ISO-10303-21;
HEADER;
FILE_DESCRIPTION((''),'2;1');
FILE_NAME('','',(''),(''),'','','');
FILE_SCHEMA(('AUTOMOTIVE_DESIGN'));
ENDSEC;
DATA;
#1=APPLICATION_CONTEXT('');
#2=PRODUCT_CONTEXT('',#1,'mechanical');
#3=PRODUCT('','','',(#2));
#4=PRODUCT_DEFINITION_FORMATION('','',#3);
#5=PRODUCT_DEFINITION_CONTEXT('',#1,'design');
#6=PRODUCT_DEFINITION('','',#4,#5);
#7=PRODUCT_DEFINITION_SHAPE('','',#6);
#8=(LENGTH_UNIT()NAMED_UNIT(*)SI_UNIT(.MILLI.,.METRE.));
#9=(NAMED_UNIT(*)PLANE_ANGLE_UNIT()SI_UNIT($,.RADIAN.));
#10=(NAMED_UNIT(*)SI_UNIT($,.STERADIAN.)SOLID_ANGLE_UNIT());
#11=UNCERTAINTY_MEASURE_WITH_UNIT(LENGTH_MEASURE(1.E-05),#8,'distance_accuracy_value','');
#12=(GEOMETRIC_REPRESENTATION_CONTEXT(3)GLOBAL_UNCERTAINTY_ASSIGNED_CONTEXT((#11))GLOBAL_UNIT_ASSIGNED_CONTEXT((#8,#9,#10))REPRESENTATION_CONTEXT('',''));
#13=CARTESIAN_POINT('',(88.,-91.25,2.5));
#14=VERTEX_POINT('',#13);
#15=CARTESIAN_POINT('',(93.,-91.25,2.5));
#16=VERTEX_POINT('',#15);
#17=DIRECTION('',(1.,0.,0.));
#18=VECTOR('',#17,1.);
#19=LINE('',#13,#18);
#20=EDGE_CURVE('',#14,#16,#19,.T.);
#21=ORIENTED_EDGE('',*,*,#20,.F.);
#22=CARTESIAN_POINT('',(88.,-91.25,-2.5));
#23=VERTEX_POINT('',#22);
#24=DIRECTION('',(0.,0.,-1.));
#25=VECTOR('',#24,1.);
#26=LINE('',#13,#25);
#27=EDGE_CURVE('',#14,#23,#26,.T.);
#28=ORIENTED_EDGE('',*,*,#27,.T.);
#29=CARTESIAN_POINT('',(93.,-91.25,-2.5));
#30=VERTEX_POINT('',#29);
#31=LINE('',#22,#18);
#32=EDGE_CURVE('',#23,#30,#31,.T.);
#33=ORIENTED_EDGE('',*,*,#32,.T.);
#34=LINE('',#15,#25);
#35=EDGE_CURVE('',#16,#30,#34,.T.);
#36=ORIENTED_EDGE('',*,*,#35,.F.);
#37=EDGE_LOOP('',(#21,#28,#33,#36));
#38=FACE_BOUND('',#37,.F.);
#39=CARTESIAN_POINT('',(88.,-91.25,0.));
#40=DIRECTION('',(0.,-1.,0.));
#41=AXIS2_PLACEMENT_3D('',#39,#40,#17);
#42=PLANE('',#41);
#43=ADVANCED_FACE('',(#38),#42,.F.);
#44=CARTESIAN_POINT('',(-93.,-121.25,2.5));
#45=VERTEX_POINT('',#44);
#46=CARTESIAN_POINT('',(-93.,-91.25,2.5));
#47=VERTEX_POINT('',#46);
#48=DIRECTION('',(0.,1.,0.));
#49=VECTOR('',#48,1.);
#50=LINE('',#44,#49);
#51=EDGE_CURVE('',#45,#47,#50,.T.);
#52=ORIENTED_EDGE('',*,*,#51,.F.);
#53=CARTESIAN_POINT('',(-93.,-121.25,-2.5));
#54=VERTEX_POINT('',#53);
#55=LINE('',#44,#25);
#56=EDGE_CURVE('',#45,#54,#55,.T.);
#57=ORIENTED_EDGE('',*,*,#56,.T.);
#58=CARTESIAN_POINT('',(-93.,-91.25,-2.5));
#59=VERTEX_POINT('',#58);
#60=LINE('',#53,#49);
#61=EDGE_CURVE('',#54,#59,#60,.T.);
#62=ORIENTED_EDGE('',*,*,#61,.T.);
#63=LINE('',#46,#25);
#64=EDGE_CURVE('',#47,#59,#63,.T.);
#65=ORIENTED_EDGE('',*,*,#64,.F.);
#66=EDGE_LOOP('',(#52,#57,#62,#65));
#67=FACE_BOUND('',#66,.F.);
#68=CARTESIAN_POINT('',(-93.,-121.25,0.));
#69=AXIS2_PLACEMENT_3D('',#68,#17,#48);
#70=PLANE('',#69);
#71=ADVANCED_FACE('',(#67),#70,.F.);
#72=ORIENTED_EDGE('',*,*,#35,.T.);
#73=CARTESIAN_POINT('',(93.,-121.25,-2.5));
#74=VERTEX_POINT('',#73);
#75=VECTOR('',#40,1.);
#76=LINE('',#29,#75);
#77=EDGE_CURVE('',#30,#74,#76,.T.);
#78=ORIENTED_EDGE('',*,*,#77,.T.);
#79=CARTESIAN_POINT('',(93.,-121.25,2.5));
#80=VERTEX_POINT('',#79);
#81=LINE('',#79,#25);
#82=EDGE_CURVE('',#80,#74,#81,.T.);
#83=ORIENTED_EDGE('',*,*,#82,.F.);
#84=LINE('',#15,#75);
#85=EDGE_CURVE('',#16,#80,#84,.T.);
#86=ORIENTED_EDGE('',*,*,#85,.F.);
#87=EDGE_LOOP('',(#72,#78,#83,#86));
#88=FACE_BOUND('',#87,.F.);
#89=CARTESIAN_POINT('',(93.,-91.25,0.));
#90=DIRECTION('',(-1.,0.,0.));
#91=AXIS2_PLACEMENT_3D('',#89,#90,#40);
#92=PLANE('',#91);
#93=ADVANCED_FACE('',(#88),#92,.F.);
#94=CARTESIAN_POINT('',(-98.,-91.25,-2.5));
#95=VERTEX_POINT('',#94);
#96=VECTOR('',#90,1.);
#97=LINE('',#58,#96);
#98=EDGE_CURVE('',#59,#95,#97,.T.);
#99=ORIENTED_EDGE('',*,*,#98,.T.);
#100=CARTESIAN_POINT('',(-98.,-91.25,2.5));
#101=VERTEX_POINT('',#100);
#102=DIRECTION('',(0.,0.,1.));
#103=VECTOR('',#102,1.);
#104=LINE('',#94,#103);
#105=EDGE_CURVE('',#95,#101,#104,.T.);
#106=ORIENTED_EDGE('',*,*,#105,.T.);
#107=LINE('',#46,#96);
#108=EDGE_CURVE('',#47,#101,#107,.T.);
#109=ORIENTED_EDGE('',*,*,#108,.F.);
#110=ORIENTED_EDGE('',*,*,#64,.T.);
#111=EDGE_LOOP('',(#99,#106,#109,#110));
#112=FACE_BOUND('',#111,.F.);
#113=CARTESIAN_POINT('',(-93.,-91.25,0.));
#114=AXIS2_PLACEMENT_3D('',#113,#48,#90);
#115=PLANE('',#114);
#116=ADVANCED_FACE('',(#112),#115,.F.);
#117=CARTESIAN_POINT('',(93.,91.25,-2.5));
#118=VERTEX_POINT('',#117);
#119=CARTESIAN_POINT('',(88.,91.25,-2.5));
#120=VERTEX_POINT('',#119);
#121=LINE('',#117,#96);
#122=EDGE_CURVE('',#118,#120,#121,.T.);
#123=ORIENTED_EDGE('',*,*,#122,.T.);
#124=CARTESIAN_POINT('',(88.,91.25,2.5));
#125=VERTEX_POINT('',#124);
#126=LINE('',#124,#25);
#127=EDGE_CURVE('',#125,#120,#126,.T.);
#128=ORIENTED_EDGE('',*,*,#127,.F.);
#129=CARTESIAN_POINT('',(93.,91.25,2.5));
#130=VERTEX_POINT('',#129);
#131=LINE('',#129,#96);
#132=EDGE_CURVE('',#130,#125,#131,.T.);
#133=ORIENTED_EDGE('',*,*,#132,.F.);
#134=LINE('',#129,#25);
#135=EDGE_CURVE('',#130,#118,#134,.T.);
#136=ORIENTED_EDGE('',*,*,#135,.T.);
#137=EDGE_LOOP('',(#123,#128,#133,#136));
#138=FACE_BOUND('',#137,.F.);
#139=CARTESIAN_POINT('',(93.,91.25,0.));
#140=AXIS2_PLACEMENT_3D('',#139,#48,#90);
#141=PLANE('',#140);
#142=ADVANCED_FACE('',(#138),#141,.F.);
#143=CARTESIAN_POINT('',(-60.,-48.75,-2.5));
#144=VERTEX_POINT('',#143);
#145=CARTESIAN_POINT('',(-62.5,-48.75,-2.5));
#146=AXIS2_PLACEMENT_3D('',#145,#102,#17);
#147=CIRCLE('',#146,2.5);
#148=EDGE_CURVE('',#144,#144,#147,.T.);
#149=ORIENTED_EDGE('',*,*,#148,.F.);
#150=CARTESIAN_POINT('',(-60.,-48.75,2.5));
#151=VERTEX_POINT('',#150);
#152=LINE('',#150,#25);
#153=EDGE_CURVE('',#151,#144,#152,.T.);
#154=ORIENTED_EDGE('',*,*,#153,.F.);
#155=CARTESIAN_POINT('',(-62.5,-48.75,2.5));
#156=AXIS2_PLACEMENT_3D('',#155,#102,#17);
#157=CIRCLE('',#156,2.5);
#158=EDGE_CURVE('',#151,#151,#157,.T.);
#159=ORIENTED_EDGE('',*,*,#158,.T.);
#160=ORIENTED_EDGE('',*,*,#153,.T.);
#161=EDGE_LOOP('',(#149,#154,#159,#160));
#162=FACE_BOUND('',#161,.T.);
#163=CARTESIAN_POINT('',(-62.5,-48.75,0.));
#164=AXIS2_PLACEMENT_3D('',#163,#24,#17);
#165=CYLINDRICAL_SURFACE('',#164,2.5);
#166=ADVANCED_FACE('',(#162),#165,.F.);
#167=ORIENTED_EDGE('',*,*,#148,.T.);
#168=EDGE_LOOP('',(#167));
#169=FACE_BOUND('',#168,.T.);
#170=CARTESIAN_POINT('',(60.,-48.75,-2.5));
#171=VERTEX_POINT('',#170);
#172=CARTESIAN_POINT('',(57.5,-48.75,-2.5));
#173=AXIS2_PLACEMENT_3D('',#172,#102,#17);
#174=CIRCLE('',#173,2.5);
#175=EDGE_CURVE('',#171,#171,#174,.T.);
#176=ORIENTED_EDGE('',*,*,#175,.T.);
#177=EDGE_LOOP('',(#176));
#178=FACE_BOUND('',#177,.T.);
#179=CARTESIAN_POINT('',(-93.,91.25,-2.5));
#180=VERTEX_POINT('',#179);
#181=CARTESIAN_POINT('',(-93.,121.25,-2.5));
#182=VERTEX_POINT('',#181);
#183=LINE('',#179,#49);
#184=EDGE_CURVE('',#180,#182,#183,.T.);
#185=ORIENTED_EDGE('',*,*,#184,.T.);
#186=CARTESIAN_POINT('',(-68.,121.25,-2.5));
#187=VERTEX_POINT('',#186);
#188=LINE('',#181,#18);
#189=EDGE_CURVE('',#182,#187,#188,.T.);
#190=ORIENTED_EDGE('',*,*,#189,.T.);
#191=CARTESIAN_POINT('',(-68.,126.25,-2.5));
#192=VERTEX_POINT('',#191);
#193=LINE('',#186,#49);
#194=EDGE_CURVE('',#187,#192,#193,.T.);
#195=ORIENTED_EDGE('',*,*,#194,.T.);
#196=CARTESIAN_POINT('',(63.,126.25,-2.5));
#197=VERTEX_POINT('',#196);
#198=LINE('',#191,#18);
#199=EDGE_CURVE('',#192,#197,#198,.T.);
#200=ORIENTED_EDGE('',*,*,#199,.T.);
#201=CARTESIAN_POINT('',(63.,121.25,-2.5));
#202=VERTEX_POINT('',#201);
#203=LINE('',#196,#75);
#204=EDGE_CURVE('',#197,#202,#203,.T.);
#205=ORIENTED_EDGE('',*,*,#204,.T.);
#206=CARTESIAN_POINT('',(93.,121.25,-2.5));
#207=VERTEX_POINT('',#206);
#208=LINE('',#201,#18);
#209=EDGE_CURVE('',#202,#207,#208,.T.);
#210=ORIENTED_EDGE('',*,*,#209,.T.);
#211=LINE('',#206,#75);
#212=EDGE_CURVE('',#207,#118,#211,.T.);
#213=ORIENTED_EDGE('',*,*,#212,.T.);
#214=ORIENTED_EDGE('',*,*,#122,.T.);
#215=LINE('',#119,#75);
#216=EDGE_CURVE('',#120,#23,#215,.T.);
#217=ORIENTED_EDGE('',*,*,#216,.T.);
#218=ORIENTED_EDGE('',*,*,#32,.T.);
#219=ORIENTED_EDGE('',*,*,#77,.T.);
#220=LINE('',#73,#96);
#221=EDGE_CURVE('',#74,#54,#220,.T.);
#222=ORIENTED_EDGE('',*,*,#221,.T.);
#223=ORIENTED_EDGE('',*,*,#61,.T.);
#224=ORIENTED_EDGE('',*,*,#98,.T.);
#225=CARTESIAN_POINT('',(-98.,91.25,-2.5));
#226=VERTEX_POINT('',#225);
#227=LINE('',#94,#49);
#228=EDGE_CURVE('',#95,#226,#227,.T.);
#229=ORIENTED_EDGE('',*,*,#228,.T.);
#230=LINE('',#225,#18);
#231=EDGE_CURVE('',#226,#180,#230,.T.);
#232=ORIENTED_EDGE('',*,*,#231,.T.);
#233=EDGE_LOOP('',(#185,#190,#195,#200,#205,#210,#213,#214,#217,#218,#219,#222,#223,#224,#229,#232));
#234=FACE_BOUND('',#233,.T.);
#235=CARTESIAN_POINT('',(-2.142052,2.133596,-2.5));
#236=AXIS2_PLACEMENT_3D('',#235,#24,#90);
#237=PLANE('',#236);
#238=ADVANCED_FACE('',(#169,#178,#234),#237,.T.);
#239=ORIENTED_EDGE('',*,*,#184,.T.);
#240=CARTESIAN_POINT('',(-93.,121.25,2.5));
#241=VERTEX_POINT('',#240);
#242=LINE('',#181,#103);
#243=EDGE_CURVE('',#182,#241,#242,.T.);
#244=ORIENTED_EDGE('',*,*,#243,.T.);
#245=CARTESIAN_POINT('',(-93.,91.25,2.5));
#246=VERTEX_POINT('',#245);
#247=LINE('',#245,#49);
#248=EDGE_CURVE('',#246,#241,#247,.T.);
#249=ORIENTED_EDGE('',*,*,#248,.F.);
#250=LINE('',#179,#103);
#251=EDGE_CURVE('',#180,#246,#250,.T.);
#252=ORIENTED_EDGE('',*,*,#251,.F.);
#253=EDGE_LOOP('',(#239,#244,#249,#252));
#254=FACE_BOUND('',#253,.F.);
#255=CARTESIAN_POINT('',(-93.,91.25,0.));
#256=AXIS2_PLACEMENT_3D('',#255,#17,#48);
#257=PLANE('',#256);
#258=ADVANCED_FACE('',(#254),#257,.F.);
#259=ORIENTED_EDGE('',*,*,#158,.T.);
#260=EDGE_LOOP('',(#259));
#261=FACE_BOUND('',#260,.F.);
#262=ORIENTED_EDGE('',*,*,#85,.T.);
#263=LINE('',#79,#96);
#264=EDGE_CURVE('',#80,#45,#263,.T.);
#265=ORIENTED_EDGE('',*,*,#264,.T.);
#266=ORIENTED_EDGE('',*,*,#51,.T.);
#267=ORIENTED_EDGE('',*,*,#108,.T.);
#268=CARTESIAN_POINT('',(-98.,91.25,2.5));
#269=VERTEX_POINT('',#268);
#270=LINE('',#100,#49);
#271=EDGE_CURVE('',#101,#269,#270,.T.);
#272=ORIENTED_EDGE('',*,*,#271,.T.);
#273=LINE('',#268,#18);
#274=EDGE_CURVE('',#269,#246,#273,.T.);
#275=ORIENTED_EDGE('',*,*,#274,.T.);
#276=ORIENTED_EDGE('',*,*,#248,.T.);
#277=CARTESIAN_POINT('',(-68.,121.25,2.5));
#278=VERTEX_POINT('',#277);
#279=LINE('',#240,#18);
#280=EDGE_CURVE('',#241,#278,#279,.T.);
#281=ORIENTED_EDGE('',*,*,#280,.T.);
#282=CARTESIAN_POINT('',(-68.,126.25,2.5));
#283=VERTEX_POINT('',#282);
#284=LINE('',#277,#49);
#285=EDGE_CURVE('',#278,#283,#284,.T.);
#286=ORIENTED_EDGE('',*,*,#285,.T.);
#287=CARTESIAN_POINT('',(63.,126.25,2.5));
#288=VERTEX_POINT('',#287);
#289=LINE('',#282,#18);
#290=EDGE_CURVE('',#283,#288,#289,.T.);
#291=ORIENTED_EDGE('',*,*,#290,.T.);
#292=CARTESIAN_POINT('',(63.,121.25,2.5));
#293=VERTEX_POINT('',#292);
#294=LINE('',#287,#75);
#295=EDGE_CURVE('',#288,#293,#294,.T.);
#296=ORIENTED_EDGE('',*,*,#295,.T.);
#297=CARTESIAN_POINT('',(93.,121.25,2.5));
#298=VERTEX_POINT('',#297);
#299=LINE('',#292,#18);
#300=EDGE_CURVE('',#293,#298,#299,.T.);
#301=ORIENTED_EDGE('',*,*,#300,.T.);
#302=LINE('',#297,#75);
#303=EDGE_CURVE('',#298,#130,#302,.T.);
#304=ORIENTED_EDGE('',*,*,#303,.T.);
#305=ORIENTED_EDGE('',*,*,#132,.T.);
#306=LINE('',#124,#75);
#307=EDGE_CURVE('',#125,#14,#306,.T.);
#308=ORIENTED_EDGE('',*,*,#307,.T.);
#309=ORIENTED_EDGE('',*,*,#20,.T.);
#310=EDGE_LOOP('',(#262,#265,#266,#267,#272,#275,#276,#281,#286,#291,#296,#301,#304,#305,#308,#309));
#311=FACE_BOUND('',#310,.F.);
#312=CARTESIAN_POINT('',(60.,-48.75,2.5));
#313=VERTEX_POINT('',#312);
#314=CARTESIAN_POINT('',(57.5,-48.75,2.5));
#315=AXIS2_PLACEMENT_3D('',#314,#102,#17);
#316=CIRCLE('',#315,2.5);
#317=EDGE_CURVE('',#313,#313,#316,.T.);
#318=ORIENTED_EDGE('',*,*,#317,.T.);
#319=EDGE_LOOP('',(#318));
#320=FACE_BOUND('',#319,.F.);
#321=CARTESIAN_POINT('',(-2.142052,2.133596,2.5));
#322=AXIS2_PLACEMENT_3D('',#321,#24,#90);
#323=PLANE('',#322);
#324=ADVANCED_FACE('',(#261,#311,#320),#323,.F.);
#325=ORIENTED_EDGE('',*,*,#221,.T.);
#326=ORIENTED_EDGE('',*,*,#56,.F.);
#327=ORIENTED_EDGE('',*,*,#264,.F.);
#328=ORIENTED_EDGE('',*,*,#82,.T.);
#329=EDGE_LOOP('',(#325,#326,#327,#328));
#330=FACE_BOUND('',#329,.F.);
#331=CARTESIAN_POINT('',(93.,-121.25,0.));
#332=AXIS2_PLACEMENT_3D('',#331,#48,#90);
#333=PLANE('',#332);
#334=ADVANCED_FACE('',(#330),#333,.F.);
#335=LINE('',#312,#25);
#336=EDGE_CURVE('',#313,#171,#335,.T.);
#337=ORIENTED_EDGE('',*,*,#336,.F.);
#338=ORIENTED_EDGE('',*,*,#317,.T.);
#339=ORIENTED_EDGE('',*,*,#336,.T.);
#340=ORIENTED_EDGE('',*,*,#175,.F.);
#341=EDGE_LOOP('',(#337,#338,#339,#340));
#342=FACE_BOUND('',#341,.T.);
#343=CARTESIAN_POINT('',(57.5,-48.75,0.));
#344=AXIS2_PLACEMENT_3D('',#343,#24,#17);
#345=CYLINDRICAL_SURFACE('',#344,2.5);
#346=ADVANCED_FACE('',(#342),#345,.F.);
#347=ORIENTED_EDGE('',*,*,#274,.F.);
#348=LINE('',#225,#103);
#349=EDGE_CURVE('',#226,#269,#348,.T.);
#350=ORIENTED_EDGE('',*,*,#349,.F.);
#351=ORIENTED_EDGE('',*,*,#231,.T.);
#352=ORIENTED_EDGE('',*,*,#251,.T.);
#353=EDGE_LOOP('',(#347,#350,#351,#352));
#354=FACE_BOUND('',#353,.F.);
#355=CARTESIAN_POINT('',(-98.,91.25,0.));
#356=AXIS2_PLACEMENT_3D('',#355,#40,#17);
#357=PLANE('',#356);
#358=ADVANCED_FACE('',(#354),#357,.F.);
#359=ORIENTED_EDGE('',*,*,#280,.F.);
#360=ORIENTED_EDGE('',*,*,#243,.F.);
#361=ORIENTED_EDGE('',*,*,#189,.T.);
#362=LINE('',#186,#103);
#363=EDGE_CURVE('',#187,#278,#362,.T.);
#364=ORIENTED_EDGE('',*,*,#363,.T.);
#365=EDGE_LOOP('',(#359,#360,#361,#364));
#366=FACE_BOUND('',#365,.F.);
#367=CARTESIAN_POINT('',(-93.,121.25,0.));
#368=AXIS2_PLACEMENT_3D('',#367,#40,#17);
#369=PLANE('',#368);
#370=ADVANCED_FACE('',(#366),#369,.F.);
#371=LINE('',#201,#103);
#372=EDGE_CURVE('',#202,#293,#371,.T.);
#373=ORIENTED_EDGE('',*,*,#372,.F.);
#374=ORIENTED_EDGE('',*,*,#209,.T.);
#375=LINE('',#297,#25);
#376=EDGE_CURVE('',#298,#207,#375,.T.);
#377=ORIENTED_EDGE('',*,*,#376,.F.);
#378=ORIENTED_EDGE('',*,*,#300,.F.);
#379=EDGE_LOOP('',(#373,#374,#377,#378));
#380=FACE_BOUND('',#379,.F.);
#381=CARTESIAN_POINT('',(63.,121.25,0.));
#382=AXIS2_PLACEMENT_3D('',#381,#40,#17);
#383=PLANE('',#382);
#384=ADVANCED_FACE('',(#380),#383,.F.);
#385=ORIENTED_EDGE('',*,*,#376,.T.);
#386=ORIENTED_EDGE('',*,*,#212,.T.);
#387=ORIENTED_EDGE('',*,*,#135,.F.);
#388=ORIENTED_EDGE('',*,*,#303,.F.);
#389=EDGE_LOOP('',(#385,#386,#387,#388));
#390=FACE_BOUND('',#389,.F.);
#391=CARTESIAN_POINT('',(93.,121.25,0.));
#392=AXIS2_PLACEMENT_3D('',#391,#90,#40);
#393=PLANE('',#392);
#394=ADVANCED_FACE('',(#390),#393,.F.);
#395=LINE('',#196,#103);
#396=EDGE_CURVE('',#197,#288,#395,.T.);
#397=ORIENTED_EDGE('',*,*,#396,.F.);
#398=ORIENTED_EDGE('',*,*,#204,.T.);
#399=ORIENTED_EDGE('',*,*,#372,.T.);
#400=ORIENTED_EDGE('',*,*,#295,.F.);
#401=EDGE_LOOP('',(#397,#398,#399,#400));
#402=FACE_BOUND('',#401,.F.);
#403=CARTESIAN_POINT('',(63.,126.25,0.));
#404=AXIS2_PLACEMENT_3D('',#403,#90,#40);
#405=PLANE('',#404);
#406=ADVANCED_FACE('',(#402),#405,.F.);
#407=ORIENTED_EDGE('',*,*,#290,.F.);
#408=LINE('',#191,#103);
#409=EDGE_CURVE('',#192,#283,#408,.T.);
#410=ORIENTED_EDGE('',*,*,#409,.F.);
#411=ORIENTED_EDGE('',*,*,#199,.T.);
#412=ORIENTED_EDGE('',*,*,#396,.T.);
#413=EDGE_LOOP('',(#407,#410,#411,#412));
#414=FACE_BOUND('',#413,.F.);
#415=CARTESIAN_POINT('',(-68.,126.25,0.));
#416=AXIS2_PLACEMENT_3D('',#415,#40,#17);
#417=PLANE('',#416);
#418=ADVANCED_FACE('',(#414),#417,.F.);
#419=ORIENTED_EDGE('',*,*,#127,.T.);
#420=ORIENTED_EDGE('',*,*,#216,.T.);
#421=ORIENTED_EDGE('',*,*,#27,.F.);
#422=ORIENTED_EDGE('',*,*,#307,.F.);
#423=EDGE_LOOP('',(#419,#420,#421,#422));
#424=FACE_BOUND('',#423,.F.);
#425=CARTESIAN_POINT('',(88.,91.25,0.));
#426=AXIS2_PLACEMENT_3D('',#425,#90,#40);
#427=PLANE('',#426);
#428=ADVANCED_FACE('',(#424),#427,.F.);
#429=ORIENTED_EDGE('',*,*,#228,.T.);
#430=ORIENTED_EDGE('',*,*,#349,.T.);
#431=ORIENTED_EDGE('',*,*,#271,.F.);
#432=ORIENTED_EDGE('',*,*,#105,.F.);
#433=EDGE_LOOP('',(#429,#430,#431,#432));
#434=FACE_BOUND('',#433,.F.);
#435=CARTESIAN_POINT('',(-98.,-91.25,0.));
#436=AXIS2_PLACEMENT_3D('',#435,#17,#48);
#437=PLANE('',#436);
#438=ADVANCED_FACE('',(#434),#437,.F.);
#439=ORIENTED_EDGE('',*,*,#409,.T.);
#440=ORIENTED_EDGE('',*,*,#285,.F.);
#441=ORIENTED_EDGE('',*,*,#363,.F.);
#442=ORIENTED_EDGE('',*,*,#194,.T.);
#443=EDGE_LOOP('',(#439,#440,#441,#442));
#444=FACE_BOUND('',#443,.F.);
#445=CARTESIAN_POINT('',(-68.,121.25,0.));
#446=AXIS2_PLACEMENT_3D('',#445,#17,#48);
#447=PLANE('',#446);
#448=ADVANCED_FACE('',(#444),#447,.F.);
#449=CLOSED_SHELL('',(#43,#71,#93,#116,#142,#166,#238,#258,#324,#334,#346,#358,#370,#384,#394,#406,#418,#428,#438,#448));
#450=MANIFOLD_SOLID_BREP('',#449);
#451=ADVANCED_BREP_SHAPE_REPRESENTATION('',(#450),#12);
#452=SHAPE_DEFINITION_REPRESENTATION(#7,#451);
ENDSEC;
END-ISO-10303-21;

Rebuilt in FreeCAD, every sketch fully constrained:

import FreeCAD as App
import Part
import Sketcher
from FreeCAD import Vector

doc = App.newDocument("Part")
body = doc.addObject("PartDesign::Body", "Body")

# Sketch on XY plane
sketch1 = body.newObject("Sketcher::SketchObject", "Sketch")
sketch1.AttachmentSupport = (doc.getObject("XY_Plane"), [""])
sketch1.MapMode = "FlatFace"
sketch1.addGeometry([
    Part.LineSegment(Vector(93, 121.25, 0), Vector(63, 121.25, 0)),  # 0
    Part.LineSegment(Vector(63, 121.25, 0), Vector(63, 126.25, 0)),  # 1
    Part.LineSegment(Vector(63, 126.25, 0), Vector(-68, 126.25, 0)),  # 2
    Part.LineSegment(Vector(-68, 126.25, 0), Vector(-68, 121.25, 0)),  # 3
    Part.LineSegment(Vector(-68, 121.25, 0), Vector(-93, 121.25, 0)),  # 4
    Part.LineSegment(Vector(-93, 121.25, 0), Vector(-93, 91.25, 0)),  # 5
    Part.LineSegment(Vector(-93, 91.25, 0), Vector(-98, 91.25, 0)),  # 6
    Part.LineSegment(Vector(-98, 91.25, 0), Vector(-98, -91.25, 0)),  # 7
    Part.LineSegment(Vector(-98, -91.25, 0), Vector(-93, -91.25, 0)),  # 8
    Part.LineSegment(Vector(-93, -91.25, 0), Vector(-93, -121.25, 0)),  # 9
    Part.LineSegment(Vector(-93, -121.25, 0), Vector(93, -121.25, 0)),  # 10
    Part.LineSegment(Vector(93, -121.25, 0), Vector(93, -91.25, 0)),  # 11
    Part.LineSegment(Vector(93, -91.25, 0), Vector(88, -91.25, 0)),  # 12
    Part.LineSegment(Vector(88, -91.25, 0), Vector(88, 91.25, 0)),  # 13
    Part.LineSegment(Vector(88, 91.25, 0), Vector(93, 91.25, 0)),  # 14
    Part.LineSegment(Vector(93, 91.25, 0), Vector(93, 121.25, 0)),  # 15
    Part.Circle(Vector(57.5, -48.75, 0), Vector(0, 0, 1), 2.5),  # 16
    Part.Circle(Vector(-62.5, -48.75, 0), Vector(0, 0, 1), 2.5),  # 17
], False)
sketch1.addConstraint([
    Sketcher.Constraint("Coincident", 0, 2, 1, 1),
    Sketcher.Constraint("Coincident", 1, 2, 2, 1),
    Sketcher.Constraint("Coincident", 2, 2, 3, 1),
    Sketcher.Constraint("Coincident", 3, 2, 4, 1),
    Sketcher.Constraint("Coincident", 4, 2, 5, 1),
    Sketcher.Constraint("Coincident", 5, 2, 6, 1),
    Sketcher.Constraint("Coincident", 6, 2, 7, 1),
    Sketcher.Constraint("Coincident", 7, 2, 8, 1),
    Sketcher.Constraint("Coincident", 8, 2, 9, 1),
    Sketcher.Constraint("Coincident", 9, 2, 10, 1),
    Sketcher.Constraint("Coincident", 10, 2, 11, 1),
    Sketcher.Constraint("Coincident", 11, 2, 12, 1),
    Sketcher.Constraint("Coincident", 12, 2, 13, 1),
    Sketcher.Constraint("Coincident", 13, 2, 14, 1),
    Sketcher.Constraint("Coincident", 14, 2, 15, 1),
    Sketcher.Constraint("Coincident", 15, 2, 0, 1),
    Sketcher.Constraint("Horizontal", 0),
    Sketcher.Constraint("Vertical", 1),
    Sketcher.Constraint("Horizontal", 2),
    Sketcher.Constraint("Vertical", 3),
    Sketcher.Constraint("Horizontal", 4),
    Sketcher.Constraint("Vertical", 5),
    Sketcher.Constraint("Horizontal", 6),
    Sketcher.Constraint("Vertical", 7),
    Sketcher.Constraint("Horizontal", 8),
    Sketcher.Constraint("Vertical", 9),
    Sketcher.Constraint("Horizontal", 10),
    Sketcher.Constraint("Vertical", 11),
    Sketcher.Constraint("Horizontal", 12),
    Sketcher.Constraint("Vertical", 13),
    Sketcher.Constraint("Horizontal", 14),
    Sketcher.Constraint("Vertical", 15),
    Sketcher.Constraint("Equal", 16, 17),
    Sketcher.Constraint("Symmetric", 4, 2, 10, 2, -1, 1),
    Sketcher.Constraint("Symmetric", 8, 2, 14, 2, -1, 1),
    Sketcher.Constraint("Symmetric", 8, 2, 11, 2, -2),
    Sketcher.Constraint("Horizontal", 16, 3, 17, 3),
    Sketcher.Constraint("Horizontal", 0, 2, 3, 2),
    Sketcher.Constraint("Horizontal", 6, 2, 13, 2),
    Sketcher.Constraint("Equal", 8, 12),
    Sketcher.Constraint("Equal", 14, 1),
    Sketcher.Constraint("Equal", 0, 5),
    Sketcher.Constraint("Diameter", 16, 5.0),
    Sketcher.Constraint("DistanceX", 0, 2, 0, 1, 30.0),
    Sketcher.Constraint("DistanceX", 2, 2, 2, 1, 131.0),
    Sketcher.Constraint("DistanceX", 4, 2, 4, 1, 25.0),
    Sketcher.Constraint("DistanceX", 6, 2, 6, 1, 5.0),
    Sketcher.Constraint("DistanceY", 7, 2, 7, 1, 182.5),
    Sketcher.Constraint("DistanceX", 17, 3, 16, 3, 120.0),
    Sketcher.Constraint("DistanceY", 16, 3, 0, 2, 170.0),
    Sketcher.Constraint("DistanceX", -1, 1, 16, 3, 57.5),
])
pad1 = body.newObject("PartDesign::Pad", "Pad")
pad1.Profile = sketch1
pad1.Length = 5
pad1.Midplane = True

doc.recompute()
